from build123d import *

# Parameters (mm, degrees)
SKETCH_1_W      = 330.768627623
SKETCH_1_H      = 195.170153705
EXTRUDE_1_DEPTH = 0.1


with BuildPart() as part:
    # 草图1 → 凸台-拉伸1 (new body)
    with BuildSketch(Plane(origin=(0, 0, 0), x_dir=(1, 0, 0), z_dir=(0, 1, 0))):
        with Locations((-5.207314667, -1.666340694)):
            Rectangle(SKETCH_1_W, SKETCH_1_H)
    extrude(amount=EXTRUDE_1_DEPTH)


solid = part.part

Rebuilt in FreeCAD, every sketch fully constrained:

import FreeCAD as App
import Part
import Sketcher

V = App.Vector


def add_polygon(sketch, points):
    """Adds a closed chain of lines whose ends are joined by coincident constraints."""
    first, n = sketch.GeometryCount, len(points)
    for a, b in zip(points, points[1:] + points[:1]):
        sketch.addGeometry(Part.LineSegment(App.Vector(*a, 0), App.Vector(*b, 0)), False)
    for i in range(n):
        sketch.addConstraint(Sketcher.Constraint("Coincident", first + i, 2, first + (i + 1) % n, 1))

doc = App.newDocument("Part")
params = doc.addObject("Spreadsheet::Sheet", "Params")
for row, (alias, value) in enumerate([
    ("pad1_length", "0.1 mm"),
], start=1):
    params.set(f"A{row}", alias)
    params.set(f"B{row}", "=" + value)
    params.setAlias(f"B{row}", alias)

body = doc.addObject("PartDesign::Body", "Body")

sketch1 = body.newObject("Sketcher::SketchObject", "Sketch")
sketch1.AttachmentSupport = (doc.getObject("XZ_Plane"), [""])
sketch1.MapMode = "FlatFace"
add_polygon(sketch1, [(-171, -96), (-171, 99), (160, 99), (160, -96)])
sketch1.addConstraint(Sketcher.Constraint("Vertical", 0))
sketch1.addConstraint(Sketcher.Constraint("Horizontal", 1))
sketch1.addConstraint(Sketcher.Constraint("Vertical", 2))
sketch1.addConstraint(Sketcher.Constraint("Horizontal", 3))
sketch1.addConstraint(Sketcher.Constraint("DistanceX", -1, 1, 1, 2, 160.176999))
sketch1.addConstraint(Sketcher.Constraint("DistanceX", 1, 1, 1, 2, 330.768628))
sketch1.addConstraint(Sketcher.Constraint("DistanceY", 0, 1, 0, 2, 195.170154))
sketch1.addConstraint(Sketcher.Constraint("DistanceY", -1, 1, 0, 2, 99.251418))
pad1 = body.newObject("PartDesign::Pad", "Pad")
pad1.Profile = sketch1
pad1.setExpression("Length", "Params.pad1_length")
pad1.Reversed = True

doc.recompute()
